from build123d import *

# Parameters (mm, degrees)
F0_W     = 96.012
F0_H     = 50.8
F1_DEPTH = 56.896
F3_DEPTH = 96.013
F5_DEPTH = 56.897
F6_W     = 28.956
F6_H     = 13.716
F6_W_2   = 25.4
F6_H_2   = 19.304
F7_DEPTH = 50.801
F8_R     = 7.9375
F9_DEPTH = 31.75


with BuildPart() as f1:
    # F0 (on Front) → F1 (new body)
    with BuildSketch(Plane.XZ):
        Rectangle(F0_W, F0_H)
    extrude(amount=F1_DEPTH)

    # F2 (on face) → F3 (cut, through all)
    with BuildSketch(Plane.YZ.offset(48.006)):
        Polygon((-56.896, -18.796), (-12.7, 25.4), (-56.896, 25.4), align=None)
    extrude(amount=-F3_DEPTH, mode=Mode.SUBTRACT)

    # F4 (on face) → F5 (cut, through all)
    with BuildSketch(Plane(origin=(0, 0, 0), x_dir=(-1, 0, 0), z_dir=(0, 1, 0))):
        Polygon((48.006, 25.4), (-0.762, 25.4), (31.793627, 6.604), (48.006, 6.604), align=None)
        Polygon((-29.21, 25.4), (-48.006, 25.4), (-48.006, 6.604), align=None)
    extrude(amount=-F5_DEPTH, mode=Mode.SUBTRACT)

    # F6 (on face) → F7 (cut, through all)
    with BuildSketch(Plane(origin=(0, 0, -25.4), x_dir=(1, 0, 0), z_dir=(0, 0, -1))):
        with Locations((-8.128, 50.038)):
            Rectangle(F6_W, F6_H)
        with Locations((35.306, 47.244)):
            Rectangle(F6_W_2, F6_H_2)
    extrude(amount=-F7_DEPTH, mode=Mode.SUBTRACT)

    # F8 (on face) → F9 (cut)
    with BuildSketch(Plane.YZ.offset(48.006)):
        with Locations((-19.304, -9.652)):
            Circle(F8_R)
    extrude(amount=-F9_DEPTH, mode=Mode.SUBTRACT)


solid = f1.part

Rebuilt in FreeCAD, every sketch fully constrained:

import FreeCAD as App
import Part
import Sketcher

V = App.Vector
Q = App.Units.Quantity

doc = App.newDocument("Part")
body = doc.addObject("PartDesign::Body", "Body")

# Sketch on XZ plane
sketch1 = body.newObject("Sketcher::SketchObject", "Sketch")
sketch1.AttachmentSupport = (doc.getObject("XZ_Plane"), [""])
sketch1.MapMode = "FlatFace"
sketch1.addGeometry([
    Part.LineSegment(V(-48, 25, 0), V(-48, -25, 0)),
    Part.LineSegment(V(-48, -25, 0), V(48, -25, 0)),
    Part.LineSegment(V(48, -25, 0), V(48, 25, 0)),
    Part.LineSegment(V(48, 25, 0), V(-48, 25, 0)),
], False)
sketch1.addConstraint([
    Sketcher.Constraint("Coincident", 0, 2, 1, 1),
    Sketcher.Constraint("Coincident", 1, 2, 2, 1),
    Sketcher.Constraint("Coincident", 2, 2, 3, 1),
    Sketcher.Constraint("Coincident", 3, 2, 0, 1),
    Sketcher.Constraint("Vertical", 0),
    Sketcher.Constraint("Horizontal", 1),
    Sketcher.Constraint("Vertical", 2),
    Sketcher.Constraint("Horizontal", 3),
    Sketcher.Constraint("Symmetric", 0, 2, 2, 2, -1, 1),
    Sketcher.Constraint("DistanceY", 0, 2, 0, 1, Q("2 in")),
    Sketcher.Constraint("DistanceX", 1, 1, 1, 2, Q("3.78 in")),
])
pad1 = body.newObject("PartDesign::Pad", "Pad")
pad1.Profile = sketch1
pad1.Length = Q("2.24 in")

# Sketch on YZ plane
sketch2 = body.newObject("Sketcher::SketchObject", "Sketch001")
sketch2.AttachmentSupport = (doc.getObject("YZ_Plane"), [""])
sketch2.MapMode = "FlatFace"
sketch2.AttachmentOffset = App.Placement(V(0, 0, 1.89 * 25.4), App.Rotation())
sketch2.addGeometry([
    Part.LineSegment(V(-57, -19, 0), V(-13, 25, 0)),
    Part.LineSegment(V(-13, 25, 0), V(-57, 25, 0)),
    Part.LineSegment(V(-57, 25, 0), V(-57, -19, 0)),
], False)
sketch2.addConstraint([
    Sketcher.Constraint("Coincident", 0, 2, 1, 1),
    Sketcher.Constraint("Coincident", 1, 2, 2, 1),
    Sketcher.Constraint("Coincident", 2, 2, 0, 1),
    Sketcher.Constraint("Horizontal", 1),
    Sketcher.Constraint("Vertical", 2),
    Sketcher.Constraint("Equal", 1, 2),
    Sketcher.Constraint("DistanceY", -1, 1, 0, 2, Q("1 in")),
    Sketcher.Constraint("DistanceX", 1, 2, 1, 1, Q("1.74 in")),
    Sketcher.Constraint("DistanceX", 0, 2, -1, 1, Q("0.5 in")),
])
pocket1 = body.newObject("PartDesign::Pocket", "Pocket")
pocket1.Profile = sketch2
pocket1.Type = "ThroughAll"

# Sketch on XZ plane
sketch3 = body.newObject("Sketcher::SketchObject", "Sketch002")
sketch3.AttachmentSupport = (doc.getObject("XZ_Plane"), [""])
sketch3.MapMode = "FlatFace"
sketch3.addGeometry([
    Part.LineSegment(V(-48, 25, 0), V(1, 25, 0)),  # 0
    Part.LineSegment(V(1, 25, 0), V(-32, 7, 0)),  # 1
    Part.LineSegment(V(-32, 7, 0), V(-48, 7, 0)),  # 2
    Part.LineSegment(V(-48, 7, 0), V(-48, 25, 0)),  # 3
    Part.LineSegment(V(29, 25, 0), V(48, 25, 0)),  # 4
    Part.LineSegment(V(48, 25, 0), V(48, 7, 0)),  # 5
    Part.LineSegment(V(48, 7, 0), V(29, 25, 0)),  # 6
], False)
sketch3.addConstraint([
    Sketcher.Constraint("Coincident", 0, 2, 1, 1),
    Sketcher.Constraint("Coincident", 1, 2, 2, 1),
    Sketcher.Constraint("Coincident", 2, 2, 3, 1),
    Sketcher.Constraint("Coincident", 3, 2, 0, 1),
    Sketcher.Constraint("Coincident", 4, 2, 5, 1),
    Sketcher.Constraint("Coincident", 5, 2, 6, 1),
    Sketcher.Constraint("Coincident", 6, 2, 4, 1),
    Sketcher.Constraint("Horizontal", 0),
    Sketcher.Constraint("Horizontal", 2),
    Sketcher.Constraint("Vertical", 3),
    Sketcher.Constraint("Horizontal", 4),
    Sketcher.Constraint("Vertical", 5),
    Sketcher.Constraint("Symmetric", 3, 2, 4, 2, -2),
    Sketcher.Constraint("Horizontal", 2, 2, 5, 2),
    Sketcher.Constraint("Equal", 4, 3),
    Sketcher.Constraint("DistanceY", -1, 1, 0, 2, Q("1 in")),
    Sketcher.Constraint("Angle", 1, Q("-150 deg")),
    Sketcher.Constraint("DistanceX", 0, 1, 0, 2, Q("1.92 in")),
    Sketcher.Constraint("DistanceX", 4, 1, 4, 2, Q("0.74 in")),
    Sketcher.Constraint("DistanceX", -1, 1, 0, 2, Q("0.03 in")),
])
pocket2 = body.newObject("PartDesign::Pocket", "Pocket001")
pocket2.Profile = sketch3
pocket2.Type = "ThroughAll"
pocket2.Reversed = True

# Sketch on XY plane
sketch4 = body.newObject("Sketcher::SketchObject", "Sketch003")
sketch4.AttachmentSupport = (doc.getObject("XY_Plane"), [""])
sketch4.MapMode = "FlatFace"
sketch4.AttachmentOffset = App.Placement(V(0, 0, -1 * 25.4), App.Rotation())
sketch4.addGeometry([
    Part.LineSegment(V(-23, -57, 0), V(-23, -43, 0)),  # 0
    Part.LineSegment(V(-23, -43, 0), V(6, -43, 0)),  # 1
    Part.LineSegment(V(6, -43, 0), V(6, -57, 0)),  # 2
    Part.LineSegment(V(6, -57, 0), V(-23, -57, 0)),  # 3
    Part.LineSegment(V(23, -57, 0), V(23, -38, 0)),  # 4
    Part.LineSegment(V(23, -38, 0), V(48, -38, 0)),  # 5
    Part.LineSegment(V(48, -38, 0), V(48, -57, 0)),  # 6
    Part.LineSegment(V(48, -57, 0), V(23, -57, 0)),  # 7
], False)
sketch4.addConstraint([
    Sketcher.Constraint("Coincident", 0, 2, 1, 1),
    Sketcher.Constraint("Coincident", 1, 2, 2, 1),
    Sketcher.Constraint("Coincident", 2, 2, 3, 1),
    Sketcher.Constraint("Coincident", 3, 2, 0, 1),
    Sketcher.Constraint("Coincident", 4, 2, 5, 1),
    Sketcher.Constraint("Coincident", 5, 2, 6, 1),
    Sketcher.Constraint("Coincident", 6, 2, 7, 1),
    Sketcher.Constraint("Coincident", 7, 2, 4, 1),
    Sketcher.Constraint("Vertical", 0),
    Sketcher.Constraint("Horizontal", 1),
    Sketcher.Constraint("Vertical", 2),
    Sketcher.Constraint("Horizontal", 3),
    Sketcher.Constraint("Vertical", 4),
    Sketcher.Constraint("Horizontal", 5),
    Sketcher.Constraint("Vertical", 6),
    Sketcher.Constraint("Horizontal", 7),
    Sketcher.Constraint("Symmetric", 3, 2, 7, 2, -2),
    Sketcher.Constraint("DistanceX", 5, 1, 5, 2, Q("1 in")),
    Sketcher.Constraint("DistanceX", 1, 1, 1, 2, Q("1.14 in")),
    Sketcher.Constraint("DistanceY", 0, 1, 0, 2, Q("0.54 in")),
    Sketcher.Constraint("DistanceY", 4, 1, 4, 2, Q("0.76 in")),
    Sketcher.Constraint("DistanceY", 0, 2, -1, 1, Q("1.7 in")),
    Sketcher.Constraint("DistanceX", 0, 2, -1, 1, Q("0.89 in")),
])
pocket3 = body.newObject("PartDesign::Pocket", "Pocket002")
pocket3.Profile = sketch4
pocket3.Type = "ThroughAll"
pocket3.Reversed = True

# Sketch on YZ plane
sketch5 = body.newObject("Sketcher::SketchObject", "Sketch004")
sketch5.AttachmentSupport = (doc.getObject("YZ_Plane"), [""])
sketch5.MapMode = "FlatFace"
sketch5.AttachmentOffset = App.Placement(V(0, 0, 1.89 * 25.4), App.Rotation())
sketch5.addGeometry(Part.Circle(V(-19, -10, 0), V(0, 0, 1), 8), False)
sketch5.addConstraint([
    Sketcher.Constraint("Diameter", 0, Q("0.625 in")),
    Sketcher.Constraint("DistanceX", 0, 3, -1, 1, Q("0.76 in")),
    Sketcher.Constraint("DistanceY", 0, 3, -1, 1, Q("0.38 in")),
])
pocket4 = body.newObject("PartDesign::Pocket", "Pocket003")
pocket4.Profile = sketch5
pocket4.Length = Q("1.25 in")

doc.recompute()
